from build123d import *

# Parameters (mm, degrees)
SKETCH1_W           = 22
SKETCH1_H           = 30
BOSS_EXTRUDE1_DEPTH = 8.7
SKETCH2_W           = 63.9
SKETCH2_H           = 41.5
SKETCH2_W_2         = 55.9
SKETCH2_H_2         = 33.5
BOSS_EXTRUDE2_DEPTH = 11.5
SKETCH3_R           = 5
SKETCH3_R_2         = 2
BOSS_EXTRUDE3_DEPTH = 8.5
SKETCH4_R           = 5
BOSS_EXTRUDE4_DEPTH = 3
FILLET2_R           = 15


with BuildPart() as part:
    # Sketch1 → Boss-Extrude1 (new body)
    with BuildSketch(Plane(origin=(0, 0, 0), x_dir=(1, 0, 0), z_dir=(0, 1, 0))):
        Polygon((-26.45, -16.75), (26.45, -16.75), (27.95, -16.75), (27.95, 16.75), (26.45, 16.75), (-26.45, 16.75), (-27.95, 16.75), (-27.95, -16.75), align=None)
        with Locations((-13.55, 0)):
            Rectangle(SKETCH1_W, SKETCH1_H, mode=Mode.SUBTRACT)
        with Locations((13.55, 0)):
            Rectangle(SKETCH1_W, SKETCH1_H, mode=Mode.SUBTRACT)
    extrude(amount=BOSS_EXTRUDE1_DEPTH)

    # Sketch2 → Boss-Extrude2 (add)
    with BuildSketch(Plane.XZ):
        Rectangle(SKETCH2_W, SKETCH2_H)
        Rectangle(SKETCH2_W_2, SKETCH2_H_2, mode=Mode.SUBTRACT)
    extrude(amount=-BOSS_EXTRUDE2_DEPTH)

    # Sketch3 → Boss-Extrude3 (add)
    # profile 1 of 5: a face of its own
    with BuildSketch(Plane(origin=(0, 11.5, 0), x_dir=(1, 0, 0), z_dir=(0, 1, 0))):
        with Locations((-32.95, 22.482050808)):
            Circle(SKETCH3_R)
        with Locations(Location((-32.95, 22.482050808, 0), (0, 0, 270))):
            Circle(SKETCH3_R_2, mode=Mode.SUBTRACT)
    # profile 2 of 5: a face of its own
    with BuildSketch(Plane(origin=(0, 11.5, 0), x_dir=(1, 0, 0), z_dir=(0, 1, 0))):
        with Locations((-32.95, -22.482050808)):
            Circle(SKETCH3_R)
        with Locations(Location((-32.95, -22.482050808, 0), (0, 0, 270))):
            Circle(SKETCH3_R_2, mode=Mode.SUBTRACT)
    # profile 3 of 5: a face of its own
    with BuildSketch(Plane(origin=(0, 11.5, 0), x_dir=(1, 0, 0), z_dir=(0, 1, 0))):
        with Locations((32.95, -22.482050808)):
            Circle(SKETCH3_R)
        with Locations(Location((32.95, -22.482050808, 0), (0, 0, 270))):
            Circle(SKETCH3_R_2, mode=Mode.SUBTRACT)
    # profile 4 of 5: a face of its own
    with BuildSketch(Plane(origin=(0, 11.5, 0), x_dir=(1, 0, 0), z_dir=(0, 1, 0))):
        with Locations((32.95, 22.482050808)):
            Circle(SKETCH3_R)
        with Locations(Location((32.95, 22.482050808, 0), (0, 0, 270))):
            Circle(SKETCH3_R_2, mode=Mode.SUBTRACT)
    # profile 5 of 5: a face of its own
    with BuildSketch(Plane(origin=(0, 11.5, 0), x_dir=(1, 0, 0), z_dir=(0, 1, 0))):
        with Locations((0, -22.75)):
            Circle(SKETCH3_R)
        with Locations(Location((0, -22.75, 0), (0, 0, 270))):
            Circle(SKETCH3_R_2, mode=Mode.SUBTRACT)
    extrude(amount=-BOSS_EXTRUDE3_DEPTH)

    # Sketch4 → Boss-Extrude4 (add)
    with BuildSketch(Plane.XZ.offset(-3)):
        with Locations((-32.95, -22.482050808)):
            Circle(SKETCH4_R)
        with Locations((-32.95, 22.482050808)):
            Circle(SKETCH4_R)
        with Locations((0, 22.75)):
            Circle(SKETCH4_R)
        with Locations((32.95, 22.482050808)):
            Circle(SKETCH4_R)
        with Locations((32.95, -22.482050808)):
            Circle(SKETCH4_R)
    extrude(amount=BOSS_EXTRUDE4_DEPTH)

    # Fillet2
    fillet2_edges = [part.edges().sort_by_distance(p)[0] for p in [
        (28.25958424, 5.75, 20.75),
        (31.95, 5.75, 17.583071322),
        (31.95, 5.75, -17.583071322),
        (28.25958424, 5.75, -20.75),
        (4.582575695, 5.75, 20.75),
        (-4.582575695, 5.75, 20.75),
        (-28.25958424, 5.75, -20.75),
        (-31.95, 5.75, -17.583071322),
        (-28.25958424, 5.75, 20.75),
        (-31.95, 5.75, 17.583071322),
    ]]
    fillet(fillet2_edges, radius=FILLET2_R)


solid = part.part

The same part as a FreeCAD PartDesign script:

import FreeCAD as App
import Part
import Sketcher

V = App.Vector
Q = App.Units.Quantity


def edges_at(feature, points):
    """Names of the edges that pass closest to the given points."""
    edges = feature.Shape.Edges
    near = lambda p: min(range(len(edges)), key=lambda i: edges[i].distToShape(Part.Vertex(*p))[0])
    return sorted({f"Edge{near(p) + 1}" for p in points})

doc = App.newDocument("Part")
body = doc.addObject("PartDesign::Body", "Body")

sketch1 = body.newObject("Sketcher::SketchObject", "Sketch")
sketch1.AttachmentSupport = (doc.getObject("XZ_Plane"), [""])
sketch1.MapMode = "FlatFace"
sketch1.addGeometry([
    Part.LineSegment(V(28, 17, 0), V(28, -17, 0)),
    Part.LineSegment(V(28, -17, 0), V(-28, -17, 0)),
    Part.LineSegment(V(-28, -17, 0), V(-28, 17, 0)),
    Part.LineSegment(V(-28, 17, 0), V(28, 17, 0)),
    Part.LineSegment(V(-3, 15, 0), V(-25, 15, 0)),
    Part.LineSegment(V(-25, 15, 0), V(-25, -15, 0)),
    Part.LineSegment(V(-25, -15, 0), V(-3, -15, 0)),
    Part.LineSegment(V(-3, -15, 0), V(-3, 15, 0)),
    Part.LineSegment(V(25, 15, 0), V(3, 15, 0)),
    Part.LineSegment(V(3, 15, 0), V(3, -15, 0)),
    Part.LineSegment(V(3, -15, 0), V(25, -15, 0)),
    Part.LineSegment(V(25, -15, 0), V(25, 15, 0)),
], False)
sketch1.addConstraint([
    Sketcher.Constraint("Coincident", 0, 2, 1, 1),
    Sketcher.Constraint("Coincident", 1, 2, 2, 1),
    Sketcher.Constraint("Coincident", 2, 2, 3, 1),
    Sketcher.Constraint("Coincident", 3, 2, 0, 1),
    Sketcher.Constraint("Coincident", 4, 2, 5, 1),
    Sketcher.Constraint("Coincident", 5, 2, 6, 1),
    Sketcher.Constraint("Coincident", 6, 2, 7, 1),
    Sketcher.Constraint("Coincident", 7, 2, 4, 1),
    Sketcher.Constraint("Coincident", 8, 2, 9, 1),
    Sketcher.Constraint("Coincident", 9, 2, 10, 1),
    Sketcher.Constraint("Coincident", 10, 2, 11, 1),
    Sketcher.Constraint("Coincident", 11, 2, 8, 1),
    Sketcher.Constraint("Vertical", 0),
    Sketcher.Constraint("Horizontal", 1),
    Sketcher.Constraint("Vertical", 2),
    Sketcher.Constraint("Horizontal", 3),
    Sketcher.Constraint("Horizontal", 4),
    Sketcher.Constraint("Vertical", 5),
    Sketcher.Constraint("Horizontal", 6),
    Sketcher.Constraint("Vertical", 7),
    Sketcher.Constraint("Horizontal", 8),
    Sketcher.Constraint("Vertical", 9),
    Sketcher.Constraint("Horizontal", 10),
    Sketcher.Constraint("Vertical", 11),
    Sketcher.Constraint("Symmetric", 0, 2, 2, 2, -1, 1),
    Sketcher.Constraint("Symmetric", 6, 2, 8, 2, -1, 1),
    Sketcher.Constraint("Symmetric", 4, 2, 10, 2, -1, 1),
    Sketcher.Constraint("Horizontal", 7, 2, 8, 2),
    Sketcher.Constraint("DistanceX", 4, 2, 4, 1, Q("22 mm")),
    Sketcher.Constraint("DistanceY", 5, 2, 5, 1, Q("30 mm")),
    Sketcher.Constraint("DistanceX", 1, 2, 1, 1, Q("55.9 mm")),
    Sketcher.Constraint("DistanceY", 0, 2, 0, 1, Q("33.5 mm")),
    Sketcher.Constraint("DistanceX", 2, 2, 4, 2, Q("3.4 mm")),
])
pad1 = body.newObject("PartDesign::Pad", "Pad")
pad1.Profile = sketch1
pad1.Length = 8.7
pad1.Reversed = True

sketch2 = body.newObject("Sketcher::SketchObject", "Sketch001")
sketch2.AttachmentSupport = (doc.getObject("XZ_Plane"), [""])
sketch2.MapMode = "FlatFace"
sketch2.addGeometry([
    Part.LineSegment(V(-32, 21, 0), V(-32, -21, 0)),
    Part.LineSegment(V(-32, -21, 0), V(32, -21, 0)),
    Part.LineSegment(V(32, -21, 0), V(32, 21, 0)),
    Part.LineSegment(V(32, 21, 0), V(-32, 21, 0)),
    Part.LineSegment(V(28, -17, 0), V(-28, -17, 0)),
    Part.LineSegment(V(-28, -17, 0), V(-28, 17, 0)),
    Part.LineSegment(V(-28, 17, 0), V(28, 17, 0)),
    Part.LineSegment(V(28, 17, 0), V(28, -17, 0)),
], False)
sketch2.addConstraint([
    Sketcher.Constraint("Coincident", 0, 2, 1, 1),
    Sketcher.Constraint("Coincident", 1, 2, 2, 1),
    Sketcher.Constraint("Coincident", 2, 2, 3, 1),
    Sketcher.Constraint("Coincident", 3, 2, 0, 1),
    Sketcher.Constraint("Coincident", 4, 2, 5, 1),
    Sketcher.Constraint("Coincident", 5, 2, 6, 1),
    Sketcher.Constraint("Coincident", 6, 2, 7, 1),
    Sketcher.Constraint("Coincident", 7, 2, 4, 1),
    Sketcher.Constraint("Vertical", 0),
    Sketcher.Constraint("Horizontal", 1),
    Sketcher.Constraint("Vertical", 2),
    Sketcher.Constraint("Horizontal", 3),
    Sketcher.Constraint("Horizontal", 4),
    Sketcher.Constraint("Vertical", 5),
    Sketcher.Constraint("Horizontal", 6),
    Sketcher.Constraint("Vertical", 7),
    Sketcher.Constraint("Symmetric", 0, 2, 2, 2, -1, 1),
    Sketcher.Constraint("Symmetric", 4, 2, 6, 2, -1, 1),
    Sketcher.Constraint("DistanceX", 1, 1, 1, 2, Q("63.9 mm")),
    Sketcher.Constraint("DistanceX", 4, 2, 4, 1, Q("55.9 mm")),
    Sketcher.Constraint("DistanceY", 0, 2, 0, 1, Q("41.5 mm")),
    Sketcher.Constraint("DistanceY", 5, 1, 5, 2, Q("33.5 mm")),
])
pad2 = body.newObject("PartDesign::Pad", "Pad001")
pad2.Profile = sketch2
pad2.Length = 11.5
pad2.Reversed = True

sketch3 = body.newObject("Sketcher::SketchObject", "Sketch002")
sketch3.AttachmentSupport = (doc.getObject("XZ_Plane"), [""])
sketch3.MapMode = "FlatFace"
sketch3.AttachmentOffset = App.Placement(V(0, 0, -11.5), App.Rotation())
sketch3.addGeometry([
    Part.Circle(V(-33, -22.5, 0), V(0, 0, 1), 5),
    Part.Circle(V(-33, -22.5, 0), V(0, 0, 1), 2),
    Part.Circle(V(-33, 22.5, 0), V(0, 0, 1), 5),
    Part.Circle(V(-33, 22.5, 0), V(0, 0, 1), 2),
    Part.Circle(V(33, 22.5, 0), V(0, 0, 1), 5),
    Part.Circle(V(33, 22.5, 0), V(0, 0, 1), 2),
    Part.Circle(V(33, -22.5, 0), V(0, 0, 1), 5),
    Part.Circle(V(33, -22.5, 0), V(0, 0, 1), 2),
    Part.Circle(V(0, 22.8, 0), V(0, 0, 1), 5),
    Part.Circle(V(0, 22.8, 0), V(0, 0, 1), 2),
], False)
sketch3.addConstraint([
    Sketcher.Constraint("Coincident", 1, 3, 0, 3),
    Sketcher.Constraint("Coincident", 3, 3, 2, 3),
    Sketcher.Constraint("Coincident", 5, 3, 4, 3),
    Sketcher.Constraint("Coincident", 7, 3, 6, 3),
    Sketcher.Constraint("Coincident", 9, 3, 8, 3),
    Sketcher.Constraint("Equal", 0, 2),
    Sketcher.Constraint("Equal", 1, 3),
    Sketcher.Constraint("Equal", 2, 4),
    Sketcher.Constraint("Equal", 3, 5),
    Sketcher.Constraint("Equal", 4, 6),
    Sketcher.Constraint("Equal", 5, 7),
    Sketcher.Constraint("Equal", 6, 8),
    Sketcher.Constraint("Equal", 7, 9),
    Sketcher.Constraint("Symmetric", 0, 3, 4, 3, -1, 1),
    Sketcher.Constraint("Symmetric", 2, 3, 6, 3, -1, 1),
    Sketcher.Constraint("Symmetric", 2, 3, 4, 3, -2),
    Sketcher.Constraint("PointOnObject", 8, 3, -2),
    Sketcher.Constraint("Diameter", 0, Q("10 mm")),
    Sketcher.Constraint("Diameter", 1, Q("4 mm")),
    Sketcher.Constraint("DistanceX", 2, 3, 4, 3, Q("65.9 mm")),
    Sketcher.Constraint("DistanceY", -1, 1, 8, 3, Q("22.75 mm")),
    Sketcher.Constraint("DistanceY", 0, 3, 2, 3, Q("44.964102 mm")),
])
pad3 = body.newObject("PartDesign::Pad", "Pad002")
pad3.Profile = sketch3
pad3.Length = 8.5

sketch4 = body.newObject("Sketcher::SketchObject", "Sketch003")
sketch4.AttachmentSupport = (doc.getObject("XZ_Plane"), [""])
sketch4.MapMode = "FlatFace"
sketch4.AttachmentOffset = App.Placement(V(0, 0, -3), App.Rotation())
sketch4.addGeometry([
    Part.Circle(V(-33, -22, 0), V(0, 0, 1), 5),
    Part.Circle(V(-33, 22, 0), V(0, 0, 1), 5),
    Part.Circle(V(0, 23, 0), V(0, 0, 1), 5),
    Part.Circle(V(33, 22, 0), V(0, 0, 1), 5),
    Part.Circle(V(33, -22, 0), V(0, 0, 1), 5),
], False)
sketch4.addConstraint([
    Sketcher.Constraint("Equal", 0, 1),
    Sketcher.Constraint("Equal", 1, 2),
    Sketcher.Constraint("Equal", 2, 3),
    Sketcher.Constraint("Equal", 3, 4),
    Sketcher.Constraint("Symmetric", 0, 3, 3, 3, -1, 1),
    Sketcher.Constraint("Symmetric", 1, 3, 4, 3, -1, 1),
    Sketcher.Constraint("Symmetric", 1, 3, 3, 3, -2),
    Sketcher.Constraint("PointOnObject", 2, 3, -2),
    Sketcher.Constraint("Diameter", 0, Q("10 mm")),
    Sketcher.Constraint("DistanceX", 1, 3, 3, 3, Q("65.9 mm")),
    Sketcher.Constraint("DistanceY", -1, 1, 2, 3, Q("22.75 mm")),
    Sketcher.Constraint("DistanceY", 0, 3, 1, 3, Q("44.964102 mm")),
])
pad4 = body.newObject("PartDesign::Pad", "Pad003")
pad4.Profile = sketch4
pad4.Length = 3
doc.recompute()

fillet = body.newObject("PartDesign::Fillet", "Fillet")
fillet.Base = (pad4, edges_at(pad4, [
    (28.26, 5.75, 20.75),
    (31.95, 5.75, 17.583),
    (31.95, 5.75, -17.583),
    (28.26, 5.75, -20.75),
    (4.583, 5.75, 20.75),
    (-4.583, 5.75, 20.75),
    (-28.26, 5.75, -20.75),
    (-31.95, 5.75, -17.583),
    (-28.26, 5.75, 20.75),
    (-31.95, 5.75, 17.583),
]))
fillet.Radius = 15

doc.recompute()
